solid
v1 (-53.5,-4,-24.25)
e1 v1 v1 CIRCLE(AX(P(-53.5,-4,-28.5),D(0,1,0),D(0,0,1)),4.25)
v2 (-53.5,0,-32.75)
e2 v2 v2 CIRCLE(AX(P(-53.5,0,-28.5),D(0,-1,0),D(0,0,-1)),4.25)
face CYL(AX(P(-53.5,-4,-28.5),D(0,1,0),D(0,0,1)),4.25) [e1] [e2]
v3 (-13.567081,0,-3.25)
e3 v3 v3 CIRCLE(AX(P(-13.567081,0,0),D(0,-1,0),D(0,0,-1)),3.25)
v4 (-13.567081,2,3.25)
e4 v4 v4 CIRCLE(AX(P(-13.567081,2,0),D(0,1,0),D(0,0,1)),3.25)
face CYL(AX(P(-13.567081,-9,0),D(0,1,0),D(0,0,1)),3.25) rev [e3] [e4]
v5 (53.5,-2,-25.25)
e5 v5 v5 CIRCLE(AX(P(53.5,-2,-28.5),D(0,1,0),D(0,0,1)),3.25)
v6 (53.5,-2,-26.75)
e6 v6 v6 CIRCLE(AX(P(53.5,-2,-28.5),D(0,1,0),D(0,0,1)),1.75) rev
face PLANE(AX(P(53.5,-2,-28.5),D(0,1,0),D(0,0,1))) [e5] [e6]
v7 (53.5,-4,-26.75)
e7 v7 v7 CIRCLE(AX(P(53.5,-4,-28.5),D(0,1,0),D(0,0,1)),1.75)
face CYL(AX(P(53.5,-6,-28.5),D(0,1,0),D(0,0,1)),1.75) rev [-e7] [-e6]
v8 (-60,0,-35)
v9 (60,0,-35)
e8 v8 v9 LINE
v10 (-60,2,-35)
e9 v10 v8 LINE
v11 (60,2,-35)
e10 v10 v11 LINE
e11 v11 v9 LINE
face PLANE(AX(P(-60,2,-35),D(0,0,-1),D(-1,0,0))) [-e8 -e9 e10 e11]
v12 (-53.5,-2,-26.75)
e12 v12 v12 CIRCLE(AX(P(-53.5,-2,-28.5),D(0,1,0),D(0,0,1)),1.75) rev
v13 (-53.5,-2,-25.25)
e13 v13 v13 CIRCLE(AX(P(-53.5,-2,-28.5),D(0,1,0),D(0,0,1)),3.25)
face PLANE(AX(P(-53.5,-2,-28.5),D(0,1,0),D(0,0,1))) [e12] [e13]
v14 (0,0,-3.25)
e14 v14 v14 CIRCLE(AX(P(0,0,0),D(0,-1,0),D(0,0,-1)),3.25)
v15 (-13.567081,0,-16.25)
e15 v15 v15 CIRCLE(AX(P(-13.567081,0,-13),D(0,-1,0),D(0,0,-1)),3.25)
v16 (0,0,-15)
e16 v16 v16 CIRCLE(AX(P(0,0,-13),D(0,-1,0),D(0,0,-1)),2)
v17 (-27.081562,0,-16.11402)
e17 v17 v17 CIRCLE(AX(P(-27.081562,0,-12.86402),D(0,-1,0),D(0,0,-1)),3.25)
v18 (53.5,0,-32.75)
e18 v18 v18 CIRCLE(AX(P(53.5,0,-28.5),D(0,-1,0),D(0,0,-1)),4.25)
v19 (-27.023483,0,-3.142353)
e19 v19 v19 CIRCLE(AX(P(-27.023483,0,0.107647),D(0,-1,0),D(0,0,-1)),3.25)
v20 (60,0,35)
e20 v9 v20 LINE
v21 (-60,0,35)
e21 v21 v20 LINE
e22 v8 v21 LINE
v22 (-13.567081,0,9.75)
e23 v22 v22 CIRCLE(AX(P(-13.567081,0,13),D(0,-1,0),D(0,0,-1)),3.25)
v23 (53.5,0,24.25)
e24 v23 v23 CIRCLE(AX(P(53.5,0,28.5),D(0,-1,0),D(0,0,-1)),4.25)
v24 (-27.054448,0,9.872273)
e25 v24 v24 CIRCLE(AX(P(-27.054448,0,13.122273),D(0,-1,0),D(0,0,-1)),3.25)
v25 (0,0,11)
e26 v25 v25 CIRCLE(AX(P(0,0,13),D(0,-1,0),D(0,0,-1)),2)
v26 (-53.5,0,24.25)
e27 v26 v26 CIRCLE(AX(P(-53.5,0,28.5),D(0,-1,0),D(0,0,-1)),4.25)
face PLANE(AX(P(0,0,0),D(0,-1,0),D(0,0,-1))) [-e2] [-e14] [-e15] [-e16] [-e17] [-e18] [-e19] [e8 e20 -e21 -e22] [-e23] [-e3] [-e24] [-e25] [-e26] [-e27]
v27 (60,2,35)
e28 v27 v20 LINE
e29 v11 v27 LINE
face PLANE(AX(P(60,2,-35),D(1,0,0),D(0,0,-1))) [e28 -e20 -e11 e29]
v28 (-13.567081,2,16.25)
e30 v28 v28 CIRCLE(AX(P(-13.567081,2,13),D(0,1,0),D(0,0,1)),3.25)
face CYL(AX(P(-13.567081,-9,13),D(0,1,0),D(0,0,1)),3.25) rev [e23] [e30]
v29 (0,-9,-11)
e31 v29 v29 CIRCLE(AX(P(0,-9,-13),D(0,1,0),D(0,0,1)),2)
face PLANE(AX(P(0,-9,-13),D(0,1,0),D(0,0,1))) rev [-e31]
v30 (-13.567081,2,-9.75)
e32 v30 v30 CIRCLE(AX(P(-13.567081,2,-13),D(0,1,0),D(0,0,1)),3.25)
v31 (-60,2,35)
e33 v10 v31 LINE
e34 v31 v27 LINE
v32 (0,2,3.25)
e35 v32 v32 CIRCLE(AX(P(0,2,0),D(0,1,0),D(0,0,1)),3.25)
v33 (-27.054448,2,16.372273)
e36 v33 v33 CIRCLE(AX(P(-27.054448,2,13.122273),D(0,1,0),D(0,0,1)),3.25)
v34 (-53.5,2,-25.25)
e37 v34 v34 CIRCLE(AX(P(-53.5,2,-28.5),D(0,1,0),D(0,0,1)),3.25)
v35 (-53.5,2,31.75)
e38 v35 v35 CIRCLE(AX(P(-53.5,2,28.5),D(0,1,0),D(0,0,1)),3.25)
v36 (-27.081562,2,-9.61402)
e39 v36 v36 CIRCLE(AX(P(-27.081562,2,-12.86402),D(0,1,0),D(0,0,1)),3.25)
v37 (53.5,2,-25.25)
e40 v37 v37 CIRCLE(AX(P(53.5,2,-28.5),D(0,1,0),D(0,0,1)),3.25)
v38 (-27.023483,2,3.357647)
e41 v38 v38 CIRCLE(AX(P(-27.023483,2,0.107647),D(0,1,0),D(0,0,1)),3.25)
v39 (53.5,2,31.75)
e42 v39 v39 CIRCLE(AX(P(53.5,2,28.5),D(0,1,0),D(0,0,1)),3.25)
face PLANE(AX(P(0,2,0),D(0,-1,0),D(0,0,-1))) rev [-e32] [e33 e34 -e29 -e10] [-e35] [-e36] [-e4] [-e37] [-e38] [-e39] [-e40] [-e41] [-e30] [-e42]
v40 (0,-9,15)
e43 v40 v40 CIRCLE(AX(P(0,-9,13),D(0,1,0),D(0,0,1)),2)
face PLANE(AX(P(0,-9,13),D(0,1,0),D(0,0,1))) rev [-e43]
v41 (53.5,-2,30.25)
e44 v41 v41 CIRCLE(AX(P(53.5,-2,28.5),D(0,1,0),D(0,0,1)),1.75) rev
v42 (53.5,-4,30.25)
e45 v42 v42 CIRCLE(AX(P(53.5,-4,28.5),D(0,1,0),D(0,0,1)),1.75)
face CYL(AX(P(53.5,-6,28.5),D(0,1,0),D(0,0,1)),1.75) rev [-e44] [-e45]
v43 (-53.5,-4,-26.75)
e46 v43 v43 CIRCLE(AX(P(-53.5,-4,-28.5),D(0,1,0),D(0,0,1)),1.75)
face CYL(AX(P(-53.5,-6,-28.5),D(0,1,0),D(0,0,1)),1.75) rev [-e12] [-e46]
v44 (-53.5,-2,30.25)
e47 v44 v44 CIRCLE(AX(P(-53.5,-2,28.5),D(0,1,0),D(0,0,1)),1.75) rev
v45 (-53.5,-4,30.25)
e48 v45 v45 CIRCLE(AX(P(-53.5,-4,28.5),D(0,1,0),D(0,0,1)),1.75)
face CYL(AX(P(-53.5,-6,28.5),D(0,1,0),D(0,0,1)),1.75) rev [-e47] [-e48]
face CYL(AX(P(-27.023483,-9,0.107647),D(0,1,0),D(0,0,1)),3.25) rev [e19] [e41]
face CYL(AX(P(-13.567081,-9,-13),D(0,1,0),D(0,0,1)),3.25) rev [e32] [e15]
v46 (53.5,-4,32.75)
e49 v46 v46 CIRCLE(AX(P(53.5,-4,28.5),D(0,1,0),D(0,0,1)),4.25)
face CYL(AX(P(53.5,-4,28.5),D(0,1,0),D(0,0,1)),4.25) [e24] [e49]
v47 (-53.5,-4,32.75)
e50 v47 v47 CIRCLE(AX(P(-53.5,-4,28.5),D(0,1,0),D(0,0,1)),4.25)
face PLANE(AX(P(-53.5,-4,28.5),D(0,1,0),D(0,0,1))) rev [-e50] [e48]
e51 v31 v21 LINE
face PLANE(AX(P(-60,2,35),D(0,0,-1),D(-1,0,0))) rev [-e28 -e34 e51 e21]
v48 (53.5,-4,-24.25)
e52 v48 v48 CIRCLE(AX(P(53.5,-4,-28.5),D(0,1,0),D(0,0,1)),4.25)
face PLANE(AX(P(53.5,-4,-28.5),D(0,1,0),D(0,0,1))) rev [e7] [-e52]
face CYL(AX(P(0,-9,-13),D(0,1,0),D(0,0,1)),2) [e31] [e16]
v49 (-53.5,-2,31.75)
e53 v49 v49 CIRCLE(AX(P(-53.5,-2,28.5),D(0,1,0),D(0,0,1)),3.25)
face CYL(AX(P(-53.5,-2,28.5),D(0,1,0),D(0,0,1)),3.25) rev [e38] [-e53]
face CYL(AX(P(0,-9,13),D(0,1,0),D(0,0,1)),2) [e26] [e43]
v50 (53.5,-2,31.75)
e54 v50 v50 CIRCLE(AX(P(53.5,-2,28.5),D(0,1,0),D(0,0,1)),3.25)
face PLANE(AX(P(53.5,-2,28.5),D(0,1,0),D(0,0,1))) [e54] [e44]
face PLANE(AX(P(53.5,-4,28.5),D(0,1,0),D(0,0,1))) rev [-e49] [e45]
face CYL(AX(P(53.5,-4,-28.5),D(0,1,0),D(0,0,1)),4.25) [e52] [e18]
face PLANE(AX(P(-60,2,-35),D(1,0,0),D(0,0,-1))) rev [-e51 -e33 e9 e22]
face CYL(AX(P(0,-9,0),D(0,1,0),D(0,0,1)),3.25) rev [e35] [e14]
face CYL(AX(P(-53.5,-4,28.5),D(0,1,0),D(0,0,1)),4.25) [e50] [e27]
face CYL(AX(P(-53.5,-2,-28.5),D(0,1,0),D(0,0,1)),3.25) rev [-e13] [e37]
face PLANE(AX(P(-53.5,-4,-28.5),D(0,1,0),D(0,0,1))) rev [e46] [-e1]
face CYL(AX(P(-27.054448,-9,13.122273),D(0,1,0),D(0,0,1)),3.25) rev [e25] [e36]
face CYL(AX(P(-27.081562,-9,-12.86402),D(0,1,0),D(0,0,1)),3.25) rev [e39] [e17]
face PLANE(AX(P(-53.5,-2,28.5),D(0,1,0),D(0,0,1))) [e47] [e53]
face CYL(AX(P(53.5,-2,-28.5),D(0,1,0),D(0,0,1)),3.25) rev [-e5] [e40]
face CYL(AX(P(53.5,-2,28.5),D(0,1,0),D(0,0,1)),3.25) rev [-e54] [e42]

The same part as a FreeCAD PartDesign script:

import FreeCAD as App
import Part
import Sketcher

V = App.Vector
Q = App.Units.Quantity

doc = App.newDocument("Part")
body = doc.addObject("PartDesign::Body", "Body")

# Sketch on XZ plane
sketch1 = body.newObject("Sketcher::SketchObject", "Sketch")
sketch1.AttachmentSupport = (doc.getObject("XZ_Plane"), [""])
sketch1.MapMode = "FlatFace"
sketch1.addGeometry(Part.LineSegment(V(-60, -35, 0), V(-60, 35, 0)), False)
sketch1.addGeometry(Part.LineSegment(V(-60, 35, 0), V(60, 35, 0)), False)
sketch1.addGeometry(Part.LineSegment(V(60, 35, 0), V(60, -35, 0)), False)
sketch1.addGeometry(Part.LineSegment(V(60, -35, 0), V(-60, -35, 0)), False)
sketch1.addConstraint(Sketcher.Constraint("Coincident", 0, 2, 1, 1))
sketch1.addConstraint(Sketcher.Constraint("Coincident", 1, 2, 2, 1))
sketch1.addConstraint(Sketcher.Constraint("Coincident", 2, 2, 3, 1))
sketch1.addConstraint(Sketcher.Constraint("Coincident", 3, 2, 0, 1))
sketch1.addConstraint(Sketcher.Constraint("Vertical", 0))
sketch1.addConstraint(Sketcher.Constraint("Horizontal", 1))
sketch1.addConstraint(Sketcher.Constraint("Vertical", 2))
sketch1.addConstraint(Sketcher.Constraint("Horizontal", 3))
sketch1.addConstraint(Sketcher.Constraint("Symmetric", 0, 2, 2, 2, -1, 1))
sketch1.addConstraint(Sketcher.Constraint("DistanceX", 1, 1, 1, 2, Q("120 mm")))
sketch1.addConstraint(Sketcher.Constraint("DistanceY", 0, 1, 0, 2, Q("70 mm")))
pad1 = body.newObject("PartDesign::Pad", "Pad")
pad1.Profile = sketch1
pad1.Length = 2
pad1.Reversed = True

# Sketch on XZ plane
sketch2 = body.newObject("Sketcher::SketchObject", "Sketch001")
sketch2.AttachmentSupport = (doc.getObject("XZ_Plane"), [""])
sketch2.MapMode = "FlatFace"
sketch2.AttachmentOffset = App.Placement(V(0, 0, -2), App.Rotation())
sketch2.addGeometry(Part.Circle(V(0, 13, 0), V(0, 0, 1), 2), False)
sketch2.addGeometry(Part.Circle(V(0, -13, 0), V(0, 0, 1), 2), False)
sketch2.addConstraint(Sketcher.Constraint("Equal", 0, 1))
sketch2.addConstraint(Sketcher.Constraint("Symmetric", 0, 3, 1, 3, -1, 1))
sketch2.addConstraint(Sketcher.Constraint("PointOnObject", 0, 3, -2))
sketch2.addConstraint(Sketcher.Constraint("Diameter", 0, Q("4 mm")))
sketch2.addConstraint(Sketcher.Constraint("DistanceY", -1, 1, 0, 3, Q("13 mm")))
pad2 = body.newObject("PartDesign::Pad", "Pad001")
pad2.Profile = sketch2
pad2.Length = 11

# Sketch on XZ plane
sketch3 = body.newObject("Sketcher::SketchObject", "Sketch002")
sketch3.AttachmentSupport = (doc.getObject("XZ_Plane"), [""])
sketch3.MapMode = "FlatFace"
sketch3.AttachmentOffset = App.Placement(V(0, 0, -2), App.Rotation())
sketch3.addGeometry(Part.Circle(V(-27.1, 13.1, 0), V(0, 0, 1), 3.2), False)
sketch3.addGeometry(Part.Circle(V(-27, 0.1, 0), V(0, 0, 1), 3.2), False)
sketch3.addGeometry(Part.Circle(V(-27.1, -12.9, 0), V(0, 0, 1), 3.2), False)
sketch3.addGeometry(Part.Circle(V(-13.6, 0, 0), V(0, 0, 1), 3.2), False)
sketch3.addGeometry(Part.Circle(V(-13.6, 13, 0), V(0, 0, 1), 3.2), False)
sketch3.addGeometry(Part.Circle(V(-13.6, -13, 0), V(0, 0, 1), 3.2), False)
sketch3.addGeometry(Part.Circle(V(0, 0, 0), V(0, 0, 1), 3.2), False)
sketch3.addConstraint(Sketcher.Constraint("Coincident", 6, 3, -1, 1))
sketch3.addConstraint(Sketcher.Constraint("Equal", 0, 1))
sketch3.addConstraint(Sketcher.Constraint("Equal", 1, 2))
sketch3.addConstraint(Sketcher.Constraint("Equal", 2, 3))
sketch3.addConstraint(Sketcher.Constraint("Equal", 3, 4))
sketch3.addConstraint(Sketcher.Constraint("Equal", 4, 5))
sketch3.addConstraint(Sketcher.Constraint("Equal", 5, 6))
sketch3.addConstraint(Sketcher.Constraint("Symmetric", 4, 3, 5, 3, -1))
sketch3.addConstraint(Sketcher.Constraint("PointOnObject", 3, 3, -1))
sketch3.addConstraint(Sketcher.Constraint("Vertical", 3, 3, 4, 3))
sketch3.addConstraint(Sketcher.Constraint("Diameter", 0, Q("6.5 mm")))
sketch3.addConstraint(Sketcher.Constraint("DistanceY", -1, 1, 4, 3, Q("13 mm")))
sketch3.addConstraint(Sketcher.Constraint("DistanceX", 1, 3, 3, 3, Q("13.456402 mm")))
sketch3.addConstraint(Sketcher.Constraint("DistanceX", 0, 3, -1, 1, Q("27.054448 mm")))
sketch3.addConstraint(Sketcher.Constraint("DistanceY", 2, 3, -1, 1, Q("12.86402 mm")))
sketch3.addConstraint(Sketcher.Constraint("DistanceX", 3, 3, -1, 1, Q("13.567081 mm")))
sketch3.addConstraint(Sketcher.Constraint("DistanceX", 2, 3, 1, 3, Q("0.058079 mm")))
sketch3.addConstraint(Sketcher.Constraint("DistanceY", -1, 1, 0, 3, Q("13.122273 mm")))
sketch3.addConstraint(Sketcher.Constraint("DistanceY", -1, 1, 1, 3, Q("0.107647 mm")))
pocket1 = body.newObject("PartDesign::Pocket", "Pocket")
pocket1.Profile = sketch3
pocket1.Length = 11
pocket1.Reversed = True

# Sketch on XZ plane
sketch4 = body.newObject("Sketcher::SketchObject", "Sketch003")
sketch4.AttachmentSupport = (doc.getObject("XZ_Plane"), [""])
sketch4.MapMode = "FlatFace"
sketch4.AttachmentOffset = App.Placement(V(0, 0, -2), App.Rotation())
sketch4.addGeometry(Part.Circle(V(-53.5, -28.5, 0), V(0, 0, 1), 4.2), False)
sketch4.addGeometry(Part.Circle(V(53.5, -28.5, 0), V(0, 0, 1), 4.2), False)
sketch4.addGeometry(Part.Circle(V(-53.5, 28.5, 0), V(0, 0, 1), 4.2), False)
sketch4.addGeometry(Part.Circle(V(53.5, 28.5, 0), V(0, 0, 1), 4.2), False)
sketch4.addConstraint(Sketcher.Constraint("Equal", 0, 1))
sketch4.addConstraint(Sketcher.Constraint("Equal", 1, 2))
sketch4.addConstraint(Sketcher.Constraint("Equal", 2, 3))
sketch4.addConstraint(Sketcher.Constraint("Symmetric", 1, 3, 2, 3, -1, 1))
sketch4.addConstraint(Sketcher.Constraint("Symmetric", 0, 3, 3, 3, -1, 1))
sketch4.addConstraint(Sketcher.Constraint("Symmetric", 0, 3, 1, 3, -2))
sketch4.addConstraint(Sketcher.Constraint("Diameter", 0, Q("8.5 mm")))
sketch4.addConstraint(Sketcher.Constraint("DistanceX", 0, 3, 1, 3, Q("107 mm")))
sketch4.addConstraint(Sketcher.Constraint("DistanceY", 0, 3, 2, 3, Q("57 mm")))
pad3 = body.newObject("PartDesign::Pad", "Pad002")
pad3.Profile = sketch4
pad3.Length = 6

# Sketch on XZ plane
sketch5 = body.newObject("Sketcher::SketchObject", "Sketch004")
sketch5.AttachmentSupport = (doc.getObject("XZ_Plane"), [""])
sketch5.MapMode = "FlatFace"
sketch5.AttachmentOffset = App.Placement(V(0, 0, -2), App.Rotation())
sketch5.addGeometry(Part.Circle(V(-53.5, -28.5, 0), V(0, 0, 1), 1.8), False)
sketch5.addGeometry(Part.Circle(V(-53.5, 28.5, 0), V(0, 0, 1), 1.8), False)
sketch5.addGeometry(Part.Circle(V(53.5, 28.5, 0), V(0, 0, 1), 1.8), False)
sketch5.addGeometry(Part.Circle(V(53.5, -28.5, 0), V(0, 0, 1), 1.8), False)
sketch5.addConstraint(Sketcher.Constraint("Equal", 0, 1))
sketch5.addConstraint(Sketcher.Constraint("Equal", 1, 2))
sketch5.addConstraint(Sketcher.Constraint("Equal", 2, 3))
sketch5.addConstraint(Sketcher.Constraint("Symmetric", 0, 3, 2, 3, -1, 1))
sketch5.addConstraint(Sketcher.Constraint("Symmetric", 1, 3, 3, 3, -1, 1))
sketch5.addConstraint(Sketcher.Constraint("Symmetric", 1, 3, 2, 3, -2))
sketch5.addConstraint(Sketcher.Constraint("Diameter", 0, Q("3.5 mm")))
sketch5.addConstraint(Sketcher.Constraint("DistanceY", 0, 3, 1, 3, Q("57 mm")))
sketch5.addConstraint(Sketcher.Constraint("DistanceX", 1, 3, 2, 3, Q("107 mm")))
pocket2 = body.newObject("PartDesign::Pocket", "Pocket001")
pocket2.Profile = sketch5
pocket2.Length = 8
pocket2.Reversed = True

# Sketch on XZ plane
sketch6 = body.newObject("Sketcher::SketchObject", "Sketch005")
sketch6.AttachmentSupport = (doc.getObject("XZ_Plane"), [""])
sketch6.MapMode = "FlatFace"
sketch6.AttachmentOffset = App.Placement(V(0, 0, -2), App.Rotation())
sketch6.addGeometry(Part.Circle(V(-53.5, -28.5, 0), V(0, 0, 1), 3.2), False)
sketch6.addGeometry(Part.Circle(V(53.5, -28.5, 0), V(0, 0, 1), 3.2), False)
sketch6.addGeometry(Part.Circle(V(-53.5, 28.5, 0), V(0, 0, 1), 3.2), False)
sketch6.addGeometry(Part.Circle(V(53.5, 28.5, 0), V(0, 0, 1), 3.2), False)
sketch6.addConstraint(Sketcher.Constraint("Equal", 0, 1))
sketch6.addConstraint(Sketcher.Constraint("Equal", 1, 2))
sketch6.addConstraint(Sketcher.Constraint("Equal", 2, 3))
sketch6.addConstraint(Sketcher.Constraint("Symmetric", 1, 3, 2, 3, -1, 1))
sketch6.addConstraint(Sketcher.Constraint("Symmetric", 0, 3, 3, 3, -1, 1))
sketch6.addConstraint(Sketcher.Constraint("Symmetric", 0, 3, 1, 3, -2))
sketch6.addConstraint(Sketcher.Constraint("Diameter", 0, Q("6.5 mm")))
sketch6.addConstraint(Sketcher.Constraint("DistanceX", 0, 3, 1, 3, Q("107 mm")))
sketch6.addConstraint(Sketcher.Constraint("DistanceY", 0, 3, 2, 3, Q("57 mm")))
pocket3 = body.newObject("PartDesign::Pocket", "Pocket002")
pocket3.Profile = sketch6
pocket3.Length = 4
pocket3.Reversed = True

doc.recompute()
